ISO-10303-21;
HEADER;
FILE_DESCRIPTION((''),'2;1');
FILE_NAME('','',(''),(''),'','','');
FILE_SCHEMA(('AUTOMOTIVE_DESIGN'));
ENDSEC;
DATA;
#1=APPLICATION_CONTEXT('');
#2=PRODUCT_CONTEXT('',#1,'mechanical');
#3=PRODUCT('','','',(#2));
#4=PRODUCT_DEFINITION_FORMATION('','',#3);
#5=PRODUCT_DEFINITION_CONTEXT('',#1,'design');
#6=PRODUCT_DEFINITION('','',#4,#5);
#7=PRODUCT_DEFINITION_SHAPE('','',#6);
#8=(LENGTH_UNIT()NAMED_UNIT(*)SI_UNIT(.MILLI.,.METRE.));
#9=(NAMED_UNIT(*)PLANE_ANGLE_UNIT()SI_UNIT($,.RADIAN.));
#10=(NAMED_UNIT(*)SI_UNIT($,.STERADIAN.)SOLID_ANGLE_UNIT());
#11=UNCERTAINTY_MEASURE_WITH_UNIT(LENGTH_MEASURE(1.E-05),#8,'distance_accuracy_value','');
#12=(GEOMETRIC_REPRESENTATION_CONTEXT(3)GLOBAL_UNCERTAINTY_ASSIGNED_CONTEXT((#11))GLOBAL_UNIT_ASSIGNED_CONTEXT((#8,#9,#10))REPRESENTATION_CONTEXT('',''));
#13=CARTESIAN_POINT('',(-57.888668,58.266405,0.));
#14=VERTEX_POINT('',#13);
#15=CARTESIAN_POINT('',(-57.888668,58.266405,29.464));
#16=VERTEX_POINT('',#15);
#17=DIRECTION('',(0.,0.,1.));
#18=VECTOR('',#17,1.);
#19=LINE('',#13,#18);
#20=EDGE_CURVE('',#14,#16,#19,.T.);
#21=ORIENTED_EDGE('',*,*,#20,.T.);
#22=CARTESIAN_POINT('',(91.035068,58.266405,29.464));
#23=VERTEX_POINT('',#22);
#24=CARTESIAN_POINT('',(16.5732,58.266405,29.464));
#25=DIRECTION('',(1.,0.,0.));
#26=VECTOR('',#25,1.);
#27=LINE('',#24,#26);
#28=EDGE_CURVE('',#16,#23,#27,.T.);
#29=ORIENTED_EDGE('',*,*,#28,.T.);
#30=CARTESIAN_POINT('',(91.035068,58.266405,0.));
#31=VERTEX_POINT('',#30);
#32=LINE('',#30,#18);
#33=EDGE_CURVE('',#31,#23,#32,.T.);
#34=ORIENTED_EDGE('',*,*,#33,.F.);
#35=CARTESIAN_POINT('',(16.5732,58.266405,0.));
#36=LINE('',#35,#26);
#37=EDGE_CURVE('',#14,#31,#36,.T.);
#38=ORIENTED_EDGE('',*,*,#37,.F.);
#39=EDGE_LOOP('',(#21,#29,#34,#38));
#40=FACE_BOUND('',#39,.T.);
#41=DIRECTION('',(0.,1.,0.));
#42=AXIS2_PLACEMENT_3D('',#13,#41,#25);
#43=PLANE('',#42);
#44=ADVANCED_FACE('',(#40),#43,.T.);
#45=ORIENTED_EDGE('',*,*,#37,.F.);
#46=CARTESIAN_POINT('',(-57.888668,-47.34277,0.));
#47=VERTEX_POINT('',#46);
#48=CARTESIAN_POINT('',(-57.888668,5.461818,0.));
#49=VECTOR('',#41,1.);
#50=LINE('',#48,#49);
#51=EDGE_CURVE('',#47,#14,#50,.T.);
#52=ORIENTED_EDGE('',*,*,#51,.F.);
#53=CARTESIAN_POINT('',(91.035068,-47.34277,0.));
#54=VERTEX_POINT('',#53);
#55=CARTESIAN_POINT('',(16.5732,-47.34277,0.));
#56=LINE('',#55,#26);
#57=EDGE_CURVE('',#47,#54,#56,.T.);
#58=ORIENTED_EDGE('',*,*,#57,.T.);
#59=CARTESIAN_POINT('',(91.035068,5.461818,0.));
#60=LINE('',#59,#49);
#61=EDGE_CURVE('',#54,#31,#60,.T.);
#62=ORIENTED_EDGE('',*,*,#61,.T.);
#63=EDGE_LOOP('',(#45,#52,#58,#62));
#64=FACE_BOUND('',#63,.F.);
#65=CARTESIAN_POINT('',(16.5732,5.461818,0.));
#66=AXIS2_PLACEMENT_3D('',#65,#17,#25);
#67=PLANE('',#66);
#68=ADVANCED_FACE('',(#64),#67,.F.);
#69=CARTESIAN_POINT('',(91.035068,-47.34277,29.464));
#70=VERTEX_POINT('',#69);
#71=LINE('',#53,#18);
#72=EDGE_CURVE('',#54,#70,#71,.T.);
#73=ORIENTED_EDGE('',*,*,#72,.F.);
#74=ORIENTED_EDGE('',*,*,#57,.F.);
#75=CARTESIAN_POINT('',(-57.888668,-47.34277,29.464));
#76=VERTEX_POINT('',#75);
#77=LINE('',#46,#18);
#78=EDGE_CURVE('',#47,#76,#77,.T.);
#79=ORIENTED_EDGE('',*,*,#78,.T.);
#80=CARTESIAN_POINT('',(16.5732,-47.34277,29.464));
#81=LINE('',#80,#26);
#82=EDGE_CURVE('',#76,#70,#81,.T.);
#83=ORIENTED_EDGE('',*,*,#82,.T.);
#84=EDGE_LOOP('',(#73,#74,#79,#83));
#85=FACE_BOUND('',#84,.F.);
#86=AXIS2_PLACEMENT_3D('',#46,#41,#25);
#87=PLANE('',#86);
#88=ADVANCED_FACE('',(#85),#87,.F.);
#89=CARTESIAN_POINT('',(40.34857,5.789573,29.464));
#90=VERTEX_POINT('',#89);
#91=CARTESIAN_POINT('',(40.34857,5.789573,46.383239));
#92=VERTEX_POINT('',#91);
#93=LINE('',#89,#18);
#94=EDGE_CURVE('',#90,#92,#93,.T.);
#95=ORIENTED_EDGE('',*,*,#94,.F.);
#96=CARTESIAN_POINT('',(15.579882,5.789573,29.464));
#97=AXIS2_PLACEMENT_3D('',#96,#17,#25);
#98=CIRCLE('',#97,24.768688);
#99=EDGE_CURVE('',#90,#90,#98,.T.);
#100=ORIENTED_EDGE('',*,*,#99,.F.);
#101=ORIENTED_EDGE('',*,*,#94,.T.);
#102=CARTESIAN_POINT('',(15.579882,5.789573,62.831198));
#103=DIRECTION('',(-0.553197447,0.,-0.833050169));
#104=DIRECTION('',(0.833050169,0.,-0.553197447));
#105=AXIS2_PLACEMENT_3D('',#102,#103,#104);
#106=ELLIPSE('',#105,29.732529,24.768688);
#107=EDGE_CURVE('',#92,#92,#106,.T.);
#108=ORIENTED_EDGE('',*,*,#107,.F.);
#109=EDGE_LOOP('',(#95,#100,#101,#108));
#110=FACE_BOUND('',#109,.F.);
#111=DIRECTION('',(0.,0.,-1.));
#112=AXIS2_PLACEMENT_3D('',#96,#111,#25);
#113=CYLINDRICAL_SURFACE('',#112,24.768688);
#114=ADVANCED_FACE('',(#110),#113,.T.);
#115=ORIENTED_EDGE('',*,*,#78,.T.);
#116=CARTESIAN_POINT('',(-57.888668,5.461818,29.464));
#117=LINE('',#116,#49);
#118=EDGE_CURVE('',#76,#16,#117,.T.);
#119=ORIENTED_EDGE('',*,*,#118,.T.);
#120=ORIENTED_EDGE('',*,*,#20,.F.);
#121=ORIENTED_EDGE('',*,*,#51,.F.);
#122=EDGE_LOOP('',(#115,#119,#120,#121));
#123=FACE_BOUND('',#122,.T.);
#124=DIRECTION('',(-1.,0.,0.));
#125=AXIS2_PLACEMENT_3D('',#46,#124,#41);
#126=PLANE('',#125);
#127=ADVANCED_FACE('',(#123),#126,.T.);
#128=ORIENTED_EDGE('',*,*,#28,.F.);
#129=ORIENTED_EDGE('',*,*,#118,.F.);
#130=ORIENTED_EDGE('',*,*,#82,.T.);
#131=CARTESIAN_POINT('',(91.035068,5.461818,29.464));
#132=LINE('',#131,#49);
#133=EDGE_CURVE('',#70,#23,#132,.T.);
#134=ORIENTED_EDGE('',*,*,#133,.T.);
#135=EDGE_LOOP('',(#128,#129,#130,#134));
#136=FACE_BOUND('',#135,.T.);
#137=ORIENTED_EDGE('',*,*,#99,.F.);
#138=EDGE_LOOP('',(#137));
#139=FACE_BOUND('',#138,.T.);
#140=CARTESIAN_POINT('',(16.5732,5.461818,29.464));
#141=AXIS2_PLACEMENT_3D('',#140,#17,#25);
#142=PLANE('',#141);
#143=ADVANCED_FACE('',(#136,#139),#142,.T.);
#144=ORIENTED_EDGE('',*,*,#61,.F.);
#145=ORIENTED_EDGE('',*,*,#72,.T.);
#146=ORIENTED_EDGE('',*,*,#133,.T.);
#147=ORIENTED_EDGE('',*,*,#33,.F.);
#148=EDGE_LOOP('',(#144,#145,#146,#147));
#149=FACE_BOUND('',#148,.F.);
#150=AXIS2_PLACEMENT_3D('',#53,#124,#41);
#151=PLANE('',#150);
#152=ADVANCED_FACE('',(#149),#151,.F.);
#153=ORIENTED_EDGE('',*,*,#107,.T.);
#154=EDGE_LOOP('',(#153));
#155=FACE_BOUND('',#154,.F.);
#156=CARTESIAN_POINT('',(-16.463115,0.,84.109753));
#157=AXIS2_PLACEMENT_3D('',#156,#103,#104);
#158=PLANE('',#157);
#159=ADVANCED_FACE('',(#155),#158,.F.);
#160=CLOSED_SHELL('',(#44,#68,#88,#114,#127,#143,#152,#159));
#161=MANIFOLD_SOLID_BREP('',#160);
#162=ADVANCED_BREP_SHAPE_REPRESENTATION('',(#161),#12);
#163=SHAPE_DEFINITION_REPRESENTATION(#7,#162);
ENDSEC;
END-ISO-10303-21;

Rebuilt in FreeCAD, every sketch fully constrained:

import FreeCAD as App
import Part
import Sketcher
from FreeCAD import Vector
Q = App.Units.Quantity


def add_polygon(sketch, points):
    """Adds a closed chain of lines whose ends are joined by coincident constraints."""
    first, n = sketch.GeometryCount, len(points)
    for a, b in zip(points, points[1:] + points[:1]):
        sketch.addGeometry(Part.LineSegment(App.Vector(*a, 0), App.Vector(*b, 0)), False)
    for i in range(n):
        sketch.addConstraint(Sketcher.Constraint("Coincident", first + i, 2, first + (i + 1) % n, 1))

doc = App.newDocument("Part")
body = doc.addObject("PartDesign::Body", "Body")

sketch1 = body.newObject("Sketcher::SketchObject", "Sketch")
sketch1.AttachmentSupport = (doc.getObject("XY_Plane"), [""])
sketch1.MapMode = "FlatFace"
add_polygon(sketch1, [(-58, 58), (-58, -47), (91, -47), (91, 58)])
sketch1.addConstraint([
    Sketcher.Constraint("Vertical", 0),
    Sketcher.Constraint("Horizontal", 1),
    Sketcher.Constraint("Vertical", 2),
    Sketcher.Constraint("Horizontal", 3),
    Sketcher.Constraint("DistanceX", 1, 1, 1, 2, Q("148.923736 mm")),
    Sketcher.Constraint("DistanceY", 0, 2, 0, 1, Q("105.609175 mm")),
    Sketcher.Constraint("DistanceX", 0, 2, -1, 1, Q("57.888668 mm")),
    Sketcher.Constraint("DistanceY", 0, 2, -1, 1, Q("47.34277 mm")),
])
pad1 = body.newObject("PartDesign::Pad", "Pad")
pad1.Profile = sketch1
pad1.Length = Q("1.16 in")

sketch2 = body.newObject("Sketcher::SketchObject", "Sketch001")
sketch2.AttachmentSupport = (doc.getObject("XY_Plane"), [""])
sketch2.MapMode = "FlatFace"
sketch2.AttachmentOffset = App.Placement(Vector(0, 0, 1.16 * 25.4), App.Rotation())
sketch2.addGeometry(Part.Circle(Vector(16, 6, 0), Vector(0, 0, 1), 25), False)
sketch2.addConstraint([
    Sketcher.Constraint("Diameter", 0, Q("49.537376 mm")),
    Sketcher.Constraint("DistanceX", -1, 1, 0, 3, Q("15.579882 mm")),
    Sketcher.Constraint("DistanceY", -1, 1, 0, 3, Q("5.789573 mm")),
])
pad2 = body.newObject("PartDesign::Pad", "Pad001")
pad2.Profile = sketch2
pad2.Length = Q("2.02 in")

sketch3 = body.newObject("Sketcher::SketchObject", "Sketch002")
sketch3.AttachmentSupport = (doc.getObject("XZ_Plane"), [""])
sketch3.MapMode = "FlatFace"
add_polygon(sketch3, [(41, 84), (-16, 84), (41, 46)])
sketch3.addConstraint([
    Sketcher.Constraint("Horizontal", 0),
    Sketcher.Constraint("Vertical", 2),
    Sketcher.Constraint("DistanceY", -1, 1, 1, 2, Q("46.179499 mm")),
    Sketcher.Constraint("Distance", 1, Q("68.56549 mm")),
    Sketcher.Constraint("DistanceX", 0, 2, 0, 1, Q("57.118493 mm")),
    Sketcher.Constraint("DistanceX", 0, 2, -1, 1, Q("16.463115 mm")),
])
pocket1 = body.newObject("PartDesign::Pocket", "Pocket")
pocket1.Profile = sketch3
pocket1.Length = Q("90 in")
pocket1.Midplane = True

doc.recompute()
